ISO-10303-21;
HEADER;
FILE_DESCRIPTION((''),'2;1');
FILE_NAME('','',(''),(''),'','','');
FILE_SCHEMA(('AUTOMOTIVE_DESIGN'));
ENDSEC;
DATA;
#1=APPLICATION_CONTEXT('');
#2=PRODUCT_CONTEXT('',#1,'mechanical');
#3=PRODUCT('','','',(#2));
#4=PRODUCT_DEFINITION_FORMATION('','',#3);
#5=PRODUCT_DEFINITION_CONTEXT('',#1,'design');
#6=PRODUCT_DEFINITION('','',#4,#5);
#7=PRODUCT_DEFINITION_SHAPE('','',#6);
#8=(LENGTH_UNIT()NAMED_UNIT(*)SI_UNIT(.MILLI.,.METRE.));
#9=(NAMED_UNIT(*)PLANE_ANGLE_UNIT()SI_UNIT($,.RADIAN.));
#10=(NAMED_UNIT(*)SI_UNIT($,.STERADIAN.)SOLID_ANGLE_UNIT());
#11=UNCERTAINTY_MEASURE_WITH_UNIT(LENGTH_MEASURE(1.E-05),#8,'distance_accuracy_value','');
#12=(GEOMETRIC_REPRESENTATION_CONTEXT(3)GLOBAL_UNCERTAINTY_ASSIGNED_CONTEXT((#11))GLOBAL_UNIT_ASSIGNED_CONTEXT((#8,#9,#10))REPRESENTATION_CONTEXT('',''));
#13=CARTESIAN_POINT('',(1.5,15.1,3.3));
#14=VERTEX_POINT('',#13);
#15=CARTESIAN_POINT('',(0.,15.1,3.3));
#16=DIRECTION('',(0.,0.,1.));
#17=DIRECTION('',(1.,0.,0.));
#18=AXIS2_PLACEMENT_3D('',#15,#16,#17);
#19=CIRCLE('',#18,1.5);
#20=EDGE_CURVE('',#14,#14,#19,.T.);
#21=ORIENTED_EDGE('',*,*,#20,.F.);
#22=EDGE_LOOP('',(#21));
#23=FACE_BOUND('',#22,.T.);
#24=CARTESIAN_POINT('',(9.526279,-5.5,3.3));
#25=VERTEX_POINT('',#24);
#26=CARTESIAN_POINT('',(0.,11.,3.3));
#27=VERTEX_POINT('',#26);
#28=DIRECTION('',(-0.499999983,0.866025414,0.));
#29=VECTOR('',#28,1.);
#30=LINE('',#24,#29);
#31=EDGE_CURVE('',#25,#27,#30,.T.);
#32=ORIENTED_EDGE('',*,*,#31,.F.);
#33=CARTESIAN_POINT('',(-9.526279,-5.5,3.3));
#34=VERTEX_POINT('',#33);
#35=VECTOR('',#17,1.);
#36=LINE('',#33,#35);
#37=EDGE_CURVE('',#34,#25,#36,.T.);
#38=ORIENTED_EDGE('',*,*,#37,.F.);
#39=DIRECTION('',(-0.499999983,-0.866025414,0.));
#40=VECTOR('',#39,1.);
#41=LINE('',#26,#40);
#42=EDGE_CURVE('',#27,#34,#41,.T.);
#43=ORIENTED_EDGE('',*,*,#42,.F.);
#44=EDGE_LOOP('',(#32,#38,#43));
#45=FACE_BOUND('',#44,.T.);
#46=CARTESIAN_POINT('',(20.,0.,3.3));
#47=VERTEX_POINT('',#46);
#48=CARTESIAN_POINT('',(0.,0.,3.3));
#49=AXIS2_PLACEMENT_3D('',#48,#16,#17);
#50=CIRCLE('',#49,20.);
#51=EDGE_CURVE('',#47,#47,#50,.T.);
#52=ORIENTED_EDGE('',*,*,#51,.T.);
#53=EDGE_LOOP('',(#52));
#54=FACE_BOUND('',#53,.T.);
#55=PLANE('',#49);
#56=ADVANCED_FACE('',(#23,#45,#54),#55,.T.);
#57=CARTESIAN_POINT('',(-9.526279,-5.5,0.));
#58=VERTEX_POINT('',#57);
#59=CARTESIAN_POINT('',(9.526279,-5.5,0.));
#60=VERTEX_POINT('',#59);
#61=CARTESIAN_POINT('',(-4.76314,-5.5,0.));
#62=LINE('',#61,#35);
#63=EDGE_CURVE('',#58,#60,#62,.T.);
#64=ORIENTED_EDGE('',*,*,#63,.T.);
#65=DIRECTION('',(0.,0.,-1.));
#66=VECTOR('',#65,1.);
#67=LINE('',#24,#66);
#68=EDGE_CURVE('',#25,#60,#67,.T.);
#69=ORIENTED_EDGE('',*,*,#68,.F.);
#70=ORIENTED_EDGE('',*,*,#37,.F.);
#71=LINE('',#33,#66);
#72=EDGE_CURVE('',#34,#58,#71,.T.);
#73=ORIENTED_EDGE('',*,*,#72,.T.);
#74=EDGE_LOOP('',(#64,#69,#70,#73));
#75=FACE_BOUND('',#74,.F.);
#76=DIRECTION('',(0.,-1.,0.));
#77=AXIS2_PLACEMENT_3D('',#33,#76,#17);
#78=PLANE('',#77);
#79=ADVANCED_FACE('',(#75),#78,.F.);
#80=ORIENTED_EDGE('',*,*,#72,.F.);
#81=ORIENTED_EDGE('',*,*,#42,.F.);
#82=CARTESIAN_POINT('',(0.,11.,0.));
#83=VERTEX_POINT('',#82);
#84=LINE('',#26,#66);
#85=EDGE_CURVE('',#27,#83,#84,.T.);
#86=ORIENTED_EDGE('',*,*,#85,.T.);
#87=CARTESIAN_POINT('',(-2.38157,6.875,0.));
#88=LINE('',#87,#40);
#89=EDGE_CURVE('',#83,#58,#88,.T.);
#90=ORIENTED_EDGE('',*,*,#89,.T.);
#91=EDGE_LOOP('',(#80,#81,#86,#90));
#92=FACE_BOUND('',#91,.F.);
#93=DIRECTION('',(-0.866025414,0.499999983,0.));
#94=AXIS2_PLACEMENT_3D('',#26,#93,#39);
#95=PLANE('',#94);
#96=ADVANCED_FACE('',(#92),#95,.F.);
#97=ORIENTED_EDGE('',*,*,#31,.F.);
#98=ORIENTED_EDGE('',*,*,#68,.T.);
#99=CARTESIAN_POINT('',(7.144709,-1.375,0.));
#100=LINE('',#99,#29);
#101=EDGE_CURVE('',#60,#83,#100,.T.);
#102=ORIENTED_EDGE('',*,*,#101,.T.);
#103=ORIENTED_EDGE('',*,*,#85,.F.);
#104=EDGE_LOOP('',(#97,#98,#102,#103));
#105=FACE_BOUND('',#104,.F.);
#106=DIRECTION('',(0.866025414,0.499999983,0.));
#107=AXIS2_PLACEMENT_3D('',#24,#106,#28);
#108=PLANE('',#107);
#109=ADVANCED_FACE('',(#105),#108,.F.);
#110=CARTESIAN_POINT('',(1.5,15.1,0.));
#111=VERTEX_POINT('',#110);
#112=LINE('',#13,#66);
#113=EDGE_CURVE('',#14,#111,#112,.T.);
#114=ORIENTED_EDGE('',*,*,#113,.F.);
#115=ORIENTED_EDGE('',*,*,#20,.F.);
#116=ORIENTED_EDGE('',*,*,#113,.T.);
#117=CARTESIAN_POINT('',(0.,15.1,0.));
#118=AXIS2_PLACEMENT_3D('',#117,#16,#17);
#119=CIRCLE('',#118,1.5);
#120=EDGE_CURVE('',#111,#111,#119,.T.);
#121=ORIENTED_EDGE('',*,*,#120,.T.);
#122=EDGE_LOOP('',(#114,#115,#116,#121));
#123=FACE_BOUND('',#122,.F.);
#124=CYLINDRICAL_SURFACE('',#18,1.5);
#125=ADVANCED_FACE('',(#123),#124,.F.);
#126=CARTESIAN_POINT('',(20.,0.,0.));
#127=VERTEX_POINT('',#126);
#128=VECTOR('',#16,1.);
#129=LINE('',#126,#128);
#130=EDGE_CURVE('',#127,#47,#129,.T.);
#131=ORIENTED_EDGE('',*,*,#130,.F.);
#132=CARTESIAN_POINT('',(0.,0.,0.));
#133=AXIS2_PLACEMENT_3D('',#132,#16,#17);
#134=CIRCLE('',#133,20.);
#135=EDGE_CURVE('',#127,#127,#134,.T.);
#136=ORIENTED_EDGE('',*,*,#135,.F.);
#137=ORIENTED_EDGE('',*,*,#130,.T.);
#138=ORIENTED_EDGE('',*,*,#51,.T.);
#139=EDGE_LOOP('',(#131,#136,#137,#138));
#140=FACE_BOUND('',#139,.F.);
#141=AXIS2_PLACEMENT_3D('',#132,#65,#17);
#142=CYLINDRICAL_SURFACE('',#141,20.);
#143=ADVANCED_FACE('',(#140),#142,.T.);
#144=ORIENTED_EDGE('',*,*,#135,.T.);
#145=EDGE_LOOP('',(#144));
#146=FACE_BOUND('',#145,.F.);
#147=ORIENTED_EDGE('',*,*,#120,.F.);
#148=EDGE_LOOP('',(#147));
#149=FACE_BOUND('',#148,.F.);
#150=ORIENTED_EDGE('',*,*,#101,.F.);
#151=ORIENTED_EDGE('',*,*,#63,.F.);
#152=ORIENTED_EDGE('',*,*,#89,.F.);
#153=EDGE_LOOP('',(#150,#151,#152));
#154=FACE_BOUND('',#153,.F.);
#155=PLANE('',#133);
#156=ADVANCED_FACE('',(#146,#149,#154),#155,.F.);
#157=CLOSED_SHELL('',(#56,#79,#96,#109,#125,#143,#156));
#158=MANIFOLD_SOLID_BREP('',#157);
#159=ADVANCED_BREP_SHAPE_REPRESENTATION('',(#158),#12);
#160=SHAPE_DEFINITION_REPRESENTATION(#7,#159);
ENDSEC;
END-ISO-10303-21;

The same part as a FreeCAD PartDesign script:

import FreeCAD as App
import Part
import Sketcher

V = App.Vector
Q = App.Units.Quantity

doc = App.newDocument("Part")
body = doc.addObject("PartDesign::Body", "Body")

# Sketch on XY plane
sketch1 = doc.addObject("Sketcher::SketchObject", "Sketch")
body.addObject(sketch1)
sketch1.AttachmentSupport = (doc.XY_Plane, [""])
sketch1.MapMode = "FlatFace"
sketch1.addGeometry(Part.Circle(V(0, 0, 0), V(0, 0, 1), 20), False)
sketch1.addConstraint([
    Sketcher.Constraint("Coincident", 0, 3, -1, 1),
    Sketcher.Constraint("Diameter", 0, Q("40 mm")),
])
pad1 = doc.addObject("PartDesign::Pad", "Pad")
body.addObject(pad1)
pad1.Profile = sketch1
pad1.Length = 3.3

# Sketch on XY plane
sketch2 = doc.addObject("Sketcher::SketchObject", "Sketch001")
body.addObject(sketch2)
sketch2.AttachmentSupport = (doc.XY_Plane, [""])
sketch2.MapMode = "FlatFace"
sketch2.AttachmentOffset = App.Placement(V(0, 0, 3.3), App.Rotation())
sketch2.addGeometry(Part.Circle(V(0, 15.1, 0), V(0, 0, 1), 1.5), False)
sketch2.addConstraint([
    Sketcher.Constraint("PointOnObject", 0, 3, -2),
    Sketcher.Constraint("Diameter", 0, Q("3 mm")),
    Sketcher.Constraint("DistanceY", -1, 1, 0, 3, Q("15.1 mm")),
])
pocket1 = doc.addObject("PartDesign::Pocket", "Pocket")
body.addObject(pocket1)
pocket1.Profile = sketch2
pocket1.Type = "ThroughAll"

# Sketch on XY plane
sketch3 = doc.addObject("Sketcher::SketchObject", "Sketch002")
body.addObject(sketch3)
sketch3.AttachmentSupport = (doc.XY_Plane, [""])
sketch3.MapMode = "FlatFace"
sketch3.AttachmentOffset = App.Placement(V(0, 0, 3.3), App.Rotation())
sketch3.addGeometry([
    Part.LineSegment(V(0, 11, 0), V(-10, -6, 0)),
    Part.LineSegment(V(-10, -6, 0), V(10, -6, 0)),
    Part.LineSegment(V(10, -6, 0), V(0, 11, 0)),
], False)
sketch3.addConstraint([
    Sketcher.Constraint("Coincident", 0, 2, 1, 1),
    Sketcher.Constraint("Coincident", 1, 2, 2, 1),
    Sketcher.Constraint("Coincident", 2, 2, 0, 1),
    Sketcher.Constraint("Horizontal", 1),
    Sketcher.Constraint("PointOnObject", 2, 2, -2),
    Sketcher.Constraint("Equal", 0, 2),
    Sketcher.Constraint("Angle", 0, Q("-119.999999 deg")),
    Sketcher.Constraint("DistanceY", -1, 1, 2, 2, Q("11 mm")),
    Sketcher.Constraint("DistanceY", 0, 2, -1, 1, Q("5.5 mm")),
])
pocket2 = doc.addObject("PartDesign::Pocket", "Pocket001")
body.addObject(pocket2)
pocket2.Profile = sketch3
pocket2.Length = 5

doc.recompute()
